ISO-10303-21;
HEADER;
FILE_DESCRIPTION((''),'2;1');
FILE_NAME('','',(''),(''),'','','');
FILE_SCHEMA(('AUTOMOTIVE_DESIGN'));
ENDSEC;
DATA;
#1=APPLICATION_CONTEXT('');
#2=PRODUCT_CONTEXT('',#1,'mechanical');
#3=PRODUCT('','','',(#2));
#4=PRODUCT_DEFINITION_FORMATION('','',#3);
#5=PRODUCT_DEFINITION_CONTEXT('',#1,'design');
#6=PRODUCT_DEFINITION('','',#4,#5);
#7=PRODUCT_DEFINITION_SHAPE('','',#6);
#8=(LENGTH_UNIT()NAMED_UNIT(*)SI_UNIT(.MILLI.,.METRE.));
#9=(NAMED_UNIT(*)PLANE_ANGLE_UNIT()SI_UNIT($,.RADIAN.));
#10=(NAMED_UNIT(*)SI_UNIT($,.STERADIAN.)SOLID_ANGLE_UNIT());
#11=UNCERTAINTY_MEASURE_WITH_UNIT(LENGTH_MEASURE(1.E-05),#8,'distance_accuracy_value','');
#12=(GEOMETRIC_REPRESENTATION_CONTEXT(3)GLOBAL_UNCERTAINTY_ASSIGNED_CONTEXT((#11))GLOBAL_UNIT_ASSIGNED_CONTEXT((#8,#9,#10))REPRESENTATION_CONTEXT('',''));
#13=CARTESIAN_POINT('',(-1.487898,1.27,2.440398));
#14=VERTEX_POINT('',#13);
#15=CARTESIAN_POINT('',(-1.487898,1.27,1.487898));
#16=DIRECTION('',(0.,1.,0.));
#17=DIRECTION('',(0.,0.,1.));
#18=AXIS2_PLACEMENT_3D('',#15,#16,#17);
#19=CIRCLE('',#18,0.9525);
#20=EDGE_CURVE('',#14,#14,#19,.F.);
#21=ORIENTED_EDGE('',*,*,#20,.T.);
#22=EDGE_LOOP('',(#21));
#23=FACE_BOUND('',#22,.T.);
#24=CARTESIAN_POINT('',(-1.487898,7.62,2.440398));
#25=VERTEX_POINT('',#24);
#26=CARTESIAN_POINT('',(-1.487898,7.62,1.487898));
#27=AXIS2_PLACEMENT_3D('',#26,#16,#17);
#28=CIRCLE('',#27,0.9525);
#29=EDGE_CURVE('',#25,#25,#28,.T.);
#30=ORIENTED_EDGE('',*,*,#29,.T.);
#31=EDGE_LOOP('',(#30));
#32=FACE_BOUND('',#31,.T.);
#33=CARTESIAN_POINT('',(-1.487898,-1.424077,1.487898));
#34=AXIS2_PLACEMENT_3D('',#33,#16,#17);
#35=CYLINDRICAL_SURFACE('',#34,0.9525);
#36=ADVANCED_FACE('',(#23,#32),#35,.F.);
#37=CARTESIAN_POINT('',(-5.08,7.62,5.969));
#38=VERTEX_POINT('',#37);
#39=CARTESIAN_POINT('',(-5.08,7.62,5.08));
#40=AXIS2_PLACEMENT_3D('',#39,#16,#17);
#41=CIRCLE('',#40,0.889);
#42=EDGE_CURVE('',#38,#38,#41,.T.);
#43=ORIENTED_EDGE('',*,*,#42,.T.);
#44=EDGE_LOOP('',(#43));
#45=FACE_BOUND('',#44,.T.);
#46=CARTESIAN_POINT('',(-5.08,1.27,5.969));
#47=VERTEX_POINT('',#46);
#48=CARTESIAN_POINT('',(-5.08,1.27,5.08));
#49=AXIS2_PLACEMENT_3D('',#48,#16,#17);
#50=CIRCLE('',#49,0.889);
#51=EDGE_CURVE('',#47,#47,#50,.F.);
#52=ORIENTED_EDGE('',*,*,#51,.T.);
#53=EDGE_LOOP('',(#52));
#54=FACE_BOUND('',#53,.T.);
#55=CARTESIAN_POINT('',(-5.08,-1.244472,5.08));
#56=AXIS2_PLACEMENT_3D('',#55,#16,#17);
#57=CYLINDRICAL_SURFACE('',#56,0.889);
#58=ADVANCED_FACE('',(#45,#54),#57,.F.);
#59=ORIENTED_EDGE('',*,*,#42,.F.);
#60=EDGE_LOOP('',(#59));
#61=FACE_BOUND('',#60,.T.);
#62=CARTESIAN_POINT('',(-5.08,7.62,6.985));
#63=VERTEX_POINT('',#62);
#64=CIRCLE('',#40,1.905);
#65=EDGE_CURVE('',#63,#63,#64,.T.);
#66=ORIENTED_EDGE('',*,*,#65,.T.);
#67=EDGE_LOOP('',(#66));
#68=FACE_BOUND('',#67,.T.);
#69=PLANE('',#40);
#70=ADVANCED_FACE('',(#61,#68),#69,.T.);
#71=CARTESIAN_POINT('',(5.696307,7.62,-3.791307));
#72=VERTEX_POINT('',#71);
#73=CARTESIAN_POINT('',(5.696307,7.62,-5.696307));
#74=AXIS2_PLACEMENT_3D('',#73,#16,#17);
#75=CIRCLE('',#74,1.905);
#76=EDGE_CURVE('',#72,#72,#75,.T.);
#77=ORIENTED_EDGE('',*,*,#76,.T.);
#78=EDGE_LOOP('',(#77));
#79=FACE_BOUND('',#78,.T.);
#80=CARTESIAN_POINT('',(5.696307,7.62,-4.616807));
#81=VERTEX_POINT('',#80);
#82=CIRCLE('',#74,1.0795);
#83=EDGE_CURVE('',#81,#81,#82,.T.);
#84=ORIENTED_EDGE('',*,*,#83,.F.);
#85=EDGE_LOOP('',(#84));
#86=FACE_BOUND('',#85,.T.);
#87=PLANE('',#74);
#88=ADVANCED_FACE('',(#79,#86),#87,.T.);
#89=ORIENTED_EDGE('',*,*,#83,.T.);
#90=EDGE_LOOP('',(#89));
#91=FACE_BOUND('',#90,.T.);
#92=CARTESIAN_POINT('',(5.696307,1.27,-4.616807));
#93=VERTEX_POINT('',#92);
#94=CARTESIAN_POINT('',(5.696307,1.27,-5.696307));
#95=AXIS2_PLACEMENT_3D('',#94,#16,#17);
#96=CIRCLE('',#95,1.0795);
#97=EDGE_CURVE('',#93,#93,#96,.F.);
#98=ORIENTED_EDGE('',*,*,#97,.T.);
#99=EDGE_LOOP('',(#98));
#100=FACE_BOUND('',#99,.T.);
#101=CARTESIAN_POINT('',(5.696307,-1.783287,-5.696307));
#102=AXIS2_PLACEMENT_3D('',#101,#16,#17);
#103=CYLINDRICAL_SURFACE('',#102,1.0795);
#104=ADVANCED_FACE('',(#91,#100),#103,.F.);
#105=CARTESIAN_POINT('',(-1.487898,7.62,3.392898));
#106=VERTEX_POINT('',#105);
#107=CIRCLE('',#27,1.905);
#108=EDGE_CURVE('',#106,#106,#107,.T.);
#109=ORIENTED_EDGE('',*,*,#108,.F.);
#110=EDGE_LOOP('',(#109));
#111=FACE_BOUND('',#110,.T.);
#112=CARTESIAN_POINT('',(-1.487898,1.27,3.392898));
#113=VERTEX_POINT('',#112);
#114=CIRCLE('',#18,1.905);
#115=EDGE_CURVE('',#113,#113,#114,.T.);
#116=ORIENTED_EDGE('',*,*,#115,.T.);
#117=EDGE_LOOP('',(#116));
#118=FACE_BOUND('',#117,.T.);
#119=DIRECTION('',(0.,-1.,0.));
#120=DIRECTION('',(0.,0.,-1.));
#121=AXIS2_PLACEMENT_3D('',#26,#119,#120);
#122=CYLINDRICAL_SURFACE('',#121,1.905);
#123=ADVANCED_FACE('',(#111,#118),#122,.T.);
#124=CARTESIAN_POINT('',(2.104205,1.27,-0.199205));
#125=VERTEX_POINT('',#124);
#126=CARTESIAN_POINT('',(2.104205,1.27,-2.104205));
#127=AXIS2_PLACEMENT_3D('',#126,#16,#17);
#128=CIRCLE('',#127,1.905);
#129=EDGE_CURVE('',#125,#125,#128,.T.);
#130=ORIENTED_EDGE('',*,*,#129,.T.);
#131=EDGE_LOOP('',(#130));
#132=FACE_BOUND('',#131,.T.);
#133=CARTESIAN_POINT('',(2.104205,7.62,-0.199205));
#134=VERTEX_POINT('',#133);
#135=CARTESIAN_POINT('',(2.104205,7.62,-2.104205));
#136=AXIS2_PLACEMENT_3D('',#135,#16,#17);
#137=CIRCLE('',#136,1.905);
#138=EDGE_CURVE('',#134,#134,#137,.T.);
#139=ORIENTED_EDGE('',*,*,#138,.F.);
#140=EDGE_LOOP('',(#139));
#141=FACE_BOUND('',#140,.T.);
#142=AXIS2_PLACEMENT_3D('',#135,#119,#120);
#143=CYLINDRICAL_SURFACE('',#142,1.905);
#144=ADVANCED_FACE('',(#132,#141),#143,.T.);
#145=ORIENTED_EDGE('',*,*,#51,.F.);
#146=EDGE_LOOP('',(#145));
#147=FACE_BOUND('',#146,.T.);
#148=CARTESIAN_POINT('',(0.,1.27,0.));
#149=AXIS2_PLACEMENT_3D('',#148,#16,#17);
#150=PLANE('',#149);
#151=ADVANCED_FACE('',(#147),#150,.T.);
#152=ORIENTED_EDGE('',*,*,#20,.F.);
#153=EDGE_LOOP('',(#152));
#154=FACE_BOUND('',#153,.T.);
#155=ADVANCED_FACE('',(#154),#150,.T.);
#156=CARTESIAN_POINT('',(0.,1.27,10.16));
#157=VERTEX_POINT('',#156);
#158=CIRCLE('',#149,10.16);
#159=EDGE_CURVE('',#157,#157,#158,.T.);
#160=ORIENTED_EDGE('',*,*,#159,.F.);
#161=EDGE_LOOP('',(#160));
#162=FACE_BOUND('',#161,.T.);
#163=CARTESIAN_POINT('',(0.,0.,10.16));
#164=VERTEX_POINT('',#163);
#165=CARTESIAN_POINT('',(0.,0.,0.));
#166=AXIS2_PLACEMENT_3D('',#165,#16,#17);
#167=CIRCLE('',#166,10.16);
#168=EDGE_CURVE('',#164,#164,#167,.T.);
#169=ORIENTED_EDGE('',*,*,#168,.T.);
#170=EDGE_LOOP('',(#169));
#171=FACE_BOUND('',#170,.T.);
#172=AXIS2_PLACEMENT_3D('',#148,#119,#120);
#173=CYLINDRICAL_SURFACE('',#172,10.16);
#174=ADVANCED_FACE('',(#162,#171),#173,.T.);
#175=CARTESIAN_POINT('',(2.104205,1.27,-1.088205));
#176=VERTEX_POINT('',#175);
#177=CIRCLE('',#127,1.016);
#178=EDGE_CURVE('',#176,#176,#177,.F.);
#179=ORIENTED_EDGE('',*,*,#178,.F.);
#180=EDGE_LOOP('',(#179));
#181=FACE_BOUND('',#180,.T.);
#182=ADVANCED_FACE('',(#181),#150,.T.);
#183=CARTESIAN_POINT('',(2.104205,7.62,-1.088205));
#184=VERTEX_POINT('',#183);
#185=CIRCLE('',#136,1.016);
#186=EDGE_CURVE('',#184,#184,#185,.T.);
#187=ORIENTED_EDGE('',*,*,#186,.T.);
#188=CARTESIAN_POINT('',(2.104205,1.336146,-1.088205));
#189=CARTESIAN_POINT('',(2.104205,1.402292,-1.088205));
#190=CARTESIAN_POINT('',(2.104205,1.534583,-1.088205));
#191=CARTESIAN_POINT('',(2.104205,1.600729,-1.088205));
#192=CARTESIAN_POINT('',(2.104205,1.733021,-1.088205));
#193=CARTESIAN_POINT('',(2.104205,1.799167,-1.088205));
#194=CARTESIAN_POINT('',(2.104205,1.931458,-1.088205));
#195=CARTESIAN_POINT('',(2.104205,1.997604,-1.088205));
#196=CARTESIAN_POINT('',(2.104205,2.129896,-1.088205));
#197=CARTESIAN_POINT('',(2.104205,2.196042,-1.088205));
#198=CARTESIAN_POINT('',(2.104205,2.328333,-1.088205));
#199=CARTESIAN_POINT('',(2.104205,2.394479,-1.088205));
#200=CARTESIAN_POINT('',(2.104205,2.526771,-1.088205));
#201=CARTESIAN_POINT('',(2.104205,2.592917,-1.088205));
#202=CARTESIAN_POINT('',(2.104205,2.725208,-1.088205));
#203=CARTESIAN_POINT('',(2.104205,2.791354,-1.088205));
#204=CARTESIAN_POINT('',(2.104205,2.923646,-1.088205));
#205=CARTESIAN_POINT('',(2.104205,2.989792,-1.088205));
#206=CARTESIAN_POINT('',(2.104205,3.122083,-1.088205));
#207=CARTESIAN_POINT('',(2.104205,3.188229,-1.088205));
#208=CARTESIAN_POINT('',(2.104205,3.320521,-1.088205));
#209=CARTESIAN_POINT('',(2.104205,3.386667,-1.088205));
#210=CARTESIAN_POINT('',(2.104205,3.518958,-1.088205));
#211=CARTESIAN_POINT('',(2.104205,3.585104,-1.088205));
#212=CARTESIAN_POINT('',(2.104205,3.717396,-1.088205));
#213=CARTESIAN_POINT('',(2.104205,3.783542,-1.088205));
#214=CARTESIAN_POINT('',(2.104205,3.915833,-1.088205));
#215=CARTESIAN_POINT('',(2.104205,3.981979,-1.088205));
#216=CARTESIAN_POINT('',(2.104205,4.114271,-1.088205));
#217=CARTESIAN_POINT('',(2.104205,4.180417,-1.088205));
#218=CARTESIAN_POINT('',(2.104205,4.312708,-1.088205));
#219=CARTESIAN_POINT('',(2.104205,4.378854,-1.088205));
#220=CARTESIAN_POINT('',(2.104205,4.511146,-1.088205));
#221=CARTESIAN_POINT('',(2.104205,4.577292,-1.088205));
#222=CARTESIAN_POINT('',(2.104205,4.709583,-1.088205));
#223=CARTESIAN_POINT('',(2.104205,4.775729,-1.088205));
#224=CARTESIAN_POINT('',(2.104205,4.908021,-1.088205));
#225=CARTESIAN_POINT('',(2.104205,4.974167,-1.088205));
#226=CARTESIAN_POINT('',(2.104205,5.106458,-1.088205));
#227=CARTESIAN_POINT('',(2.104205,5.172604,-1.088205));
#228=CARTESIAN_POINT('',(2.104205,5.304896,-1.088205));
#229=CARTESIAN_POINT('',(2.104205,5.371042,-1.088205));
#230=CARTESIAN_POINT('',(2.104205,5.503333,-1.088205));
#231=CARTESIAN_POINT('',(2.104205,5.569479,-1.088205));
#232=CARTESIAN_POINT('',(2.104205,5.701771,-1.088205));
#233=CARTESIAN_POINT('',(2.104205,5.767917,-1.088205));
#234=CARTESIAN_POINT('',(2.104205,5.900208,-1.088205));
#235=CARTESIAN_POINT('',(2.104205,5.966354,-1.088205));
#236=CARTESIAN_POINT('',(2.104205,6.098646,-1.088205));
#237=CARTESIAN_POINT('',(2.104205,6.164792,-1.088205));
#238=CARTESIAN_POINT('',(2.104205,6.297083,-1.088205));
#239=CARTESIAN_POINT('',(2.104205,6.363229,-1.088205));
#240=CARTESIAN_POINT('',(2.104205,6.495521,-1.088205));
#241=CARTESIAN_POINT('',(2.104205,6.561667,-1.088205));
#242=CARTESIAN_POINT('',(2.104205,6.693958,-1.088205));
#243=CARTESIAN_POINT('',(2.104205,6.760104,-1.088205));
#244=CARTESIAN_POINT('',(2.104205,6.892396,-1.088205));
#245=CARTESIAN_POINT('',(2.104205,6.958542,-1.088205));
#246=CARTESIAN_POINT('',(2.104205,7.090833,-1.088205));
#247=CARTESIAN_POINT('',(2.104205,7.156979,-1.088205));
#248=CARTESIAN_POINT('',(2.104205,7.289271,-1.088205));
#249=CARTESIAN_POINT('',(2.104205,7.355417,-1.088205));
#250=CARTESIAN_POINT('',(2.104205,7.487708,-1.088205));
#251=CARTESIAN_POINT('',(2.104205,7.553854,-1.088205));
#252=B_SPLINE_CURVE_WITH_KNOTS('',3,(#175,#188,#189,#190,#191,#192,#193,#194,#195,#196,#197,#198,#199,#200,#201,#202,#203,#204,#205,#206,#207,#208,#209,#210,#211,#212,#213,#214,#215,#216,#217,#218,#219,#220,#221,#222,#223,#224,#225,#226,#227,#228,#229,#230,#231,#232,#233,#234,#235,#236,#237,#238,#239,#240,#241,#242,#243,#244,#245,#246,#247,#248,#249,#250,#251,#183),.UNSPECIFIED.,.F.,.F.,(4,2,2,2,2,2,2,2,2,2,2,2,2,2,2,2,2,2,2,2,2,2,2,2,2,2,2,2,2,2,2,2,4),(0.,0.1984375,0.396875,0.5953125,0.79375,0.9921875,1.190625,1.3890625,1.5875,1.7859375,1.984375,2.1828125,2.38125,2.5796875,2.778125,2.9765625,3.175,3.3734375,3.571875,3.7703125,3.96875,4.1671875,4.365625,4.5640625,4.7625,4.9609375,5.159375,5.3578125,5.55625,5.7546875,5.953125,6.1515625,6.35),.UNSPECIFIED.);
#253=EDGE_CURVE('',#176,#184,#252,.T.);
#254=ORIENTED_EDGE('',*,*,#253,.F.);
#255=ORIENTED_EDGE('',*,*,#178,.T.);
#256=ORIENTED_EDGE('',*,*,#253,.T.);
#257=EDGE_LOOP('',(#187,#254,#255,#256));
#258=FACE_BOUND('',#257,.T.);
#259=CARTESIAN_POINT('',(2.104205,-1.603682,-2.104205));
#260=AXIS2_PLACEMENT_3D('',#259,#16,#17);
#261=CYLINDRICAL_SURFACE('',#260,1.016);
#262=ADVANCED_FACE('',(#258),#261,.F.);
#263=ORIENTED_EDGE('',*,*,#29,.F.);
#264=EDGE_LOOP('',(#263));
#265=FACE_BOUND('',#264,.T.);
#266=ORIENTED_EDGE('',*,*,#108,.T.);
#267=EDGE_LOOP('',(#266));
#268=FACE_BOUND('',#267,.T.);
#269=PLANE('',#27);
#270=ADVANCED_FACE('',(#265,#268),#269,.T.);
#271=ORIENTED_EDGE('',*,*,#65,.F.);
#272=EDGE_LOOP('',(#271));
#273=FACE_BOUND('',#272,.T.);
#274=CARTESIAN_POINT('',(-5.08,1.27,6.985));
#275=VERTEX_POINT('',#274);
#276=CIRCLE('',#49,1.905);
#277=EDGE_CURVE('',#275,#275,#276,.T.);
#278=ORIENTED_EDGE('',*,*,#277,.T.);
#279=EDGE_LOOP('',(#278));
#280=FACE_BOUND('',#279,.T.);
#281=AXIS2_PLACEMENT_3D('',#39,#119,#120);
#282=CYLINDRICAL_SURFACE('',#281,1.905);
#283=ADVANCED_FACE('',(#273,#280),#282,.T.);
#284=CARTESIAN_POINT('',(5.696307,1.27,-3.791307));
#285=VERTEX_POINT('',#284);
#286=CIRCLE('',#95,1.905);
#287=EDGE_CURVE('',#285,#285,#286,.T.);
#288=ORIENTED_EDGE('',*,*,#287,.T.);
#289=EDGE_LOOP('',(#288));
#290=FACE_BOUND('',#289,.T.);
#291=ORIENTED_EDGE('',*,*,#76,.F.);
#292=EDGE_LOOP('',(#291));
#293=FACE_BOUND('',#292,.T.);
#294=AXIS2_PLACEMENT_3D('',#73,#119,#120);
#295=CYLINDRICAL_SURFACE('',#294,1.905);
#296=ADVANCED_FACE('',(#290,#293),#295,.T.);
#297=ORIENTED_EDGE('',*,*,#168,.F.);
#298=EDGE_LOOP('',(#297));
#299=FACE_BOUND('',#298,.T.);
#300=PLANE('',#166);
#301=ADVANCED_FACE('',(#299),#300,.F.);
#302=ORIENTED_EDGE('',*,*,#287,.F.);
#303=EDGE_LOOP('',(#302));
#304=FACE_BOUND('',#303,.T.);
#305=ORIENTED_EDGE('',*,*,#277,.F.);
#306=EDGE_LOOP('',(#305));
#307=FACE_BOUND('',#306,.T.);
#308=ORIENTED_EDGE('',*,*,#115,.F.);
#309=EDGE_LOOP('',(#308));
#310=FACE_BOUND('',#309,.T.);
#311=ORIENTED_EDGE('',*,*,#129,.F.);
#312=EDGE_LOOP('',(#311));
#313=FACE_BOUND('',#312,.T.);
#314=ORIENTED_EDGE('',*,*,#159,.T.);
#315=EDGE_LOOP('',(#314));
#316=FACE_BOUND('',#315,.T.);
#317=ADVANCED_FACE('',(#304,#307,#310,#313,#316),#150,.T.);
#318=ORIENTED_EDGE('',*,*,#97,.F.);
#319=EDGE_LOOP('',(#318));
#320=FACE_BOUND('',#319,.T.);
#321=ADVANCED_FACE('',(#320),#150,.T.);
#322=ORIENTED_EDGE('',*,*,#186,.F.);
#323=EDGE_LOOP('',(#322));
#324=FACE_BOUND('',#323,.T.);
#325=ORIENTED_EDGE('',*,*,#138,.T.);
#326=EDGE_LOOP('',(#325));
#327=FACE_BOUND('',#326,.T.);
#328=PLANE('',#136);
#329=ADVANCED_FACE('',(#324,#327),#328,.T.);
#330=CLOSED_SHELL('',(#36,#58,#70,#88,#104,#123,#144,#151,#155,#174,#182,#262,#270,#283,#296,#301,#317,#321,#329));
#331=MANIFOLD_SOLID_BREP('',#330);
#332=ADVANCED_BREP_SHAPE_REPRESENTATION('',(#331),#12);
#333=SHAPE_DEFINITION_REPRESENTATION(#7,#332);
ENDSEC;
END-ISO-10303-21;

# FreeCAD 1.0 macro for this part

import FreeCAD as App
import Part
import Sketcher
from FreeCAD import Vector
Q = App.Units.Quantity

doc = App.newDocument("Part")
body = doc.addObject("PartDesign::Body", "Body")

sketch1 = body.newObject("Sketcher::SketchObject", "Sketch")
sketch1.AttachmentSupport = (doc.getObject("XZ_Plane"), [""])
sketch1.MapMode = "FlatFace"
sketch1.addGeometry(Part.Circle(Vector(0, 0, 0), Vector(0, 0, 1), 10), False)
sketch1.addConstraint([
    Sketcher.Constraint("Coincident", 0, 3, -1, 1),
    Sketcher.Constraint("Diameter", 0, Q("0.8 in")),
])
pad1 = body.newObject("PartDesign::Pad", "Pad")
pad1.Profile = sketch1
pad1.Length = Q("0.05 in")
pad1.Reversed = True

sketch2 = body.newObject("Sketcher::SketchObject", "Sketch001")
sketch2.AttachmentSupport = (doc.getObject("XZ_Plane"), [""])
sketch2.MapMode = "FlatFace"
sketch2.AttachmentOffset = App.Placement(Vector(0, 0, -0.05 * 25.4), App.Rotation())
sketch2.addGeometry(Part.Circle(Vector(-5.1, 5.1, 0), Vector(0, 0, 1), 1.9), False)
sketch2.addConstraint([
    Sketcher.Constraint("Diameter", 0, Q("0.15 in")),
    Sketcher.Constraint("DistanceX", 0, 3, -1, 1, Q("0.2 in")),
    Sketcher.Constraint("DistanceY", -1, 1, 0, 3, Q("0.2 in")),
])
pad2 = body.newObject("PartDesign::Pad", "Pad001")
pad2.Profile = sketch2
pad2.Length = Q("0.25 in")
pad2.Reversed = True
doc.recompute()

datumline = body.newObject("PartDesign::Line", "DatumLine")
datumline.Placement = App.Placement(Vector(0, 0, 0), App.Rotation(Vector(0, 0, 1), Vector(0.707106781, 0, -0.707106781)))
linearpattern = body.newObject("PartDesign::LinearPattern", "LinearPattern")
linearpattern.Originals = [pad2]
linearpattern.Direction = (datumline, [""])
linearpattern.Mode = "offset"
linearpattern.Offset = Q("0.2 in")
linearpattern.Occurrences = 4
body.Tip = linearpattern

sketch3 = body.newObject("Sketcher::SketchObject", "Sketch002")
sketch3.AttachmentSupport = (doc.getObject("XZ_Plane"), [""])
sketch3.MapMode = "FlatFace"
sketch3.AttachmentOffset = App.Placement(Vector(0, 0, -0.3 * 25.4), App.Rotation())
sketch3.addGeometry(Part.Circle(Vector(-5.1, 5.1, 0), Vector(0, 0, 1), 0.9), False)
sketch3.addConstraint([
    Sketcher.Constraint("Diameter", 0, Q("0.07 in")),
    Sketcher.Constraint("DistanceX", 0, 3, -1, 1, Q("0.2 in")),
    Sketcher.Constraint("DistanceY", -1, 1, 0, 3, Q("0.2 in")),
])
pocket1 = body.newObject("PartDesign::Pocket", "Pocket")
pocket1.Profile = sketch3
pocket1.Length = Q("0.25 in")
pocket1.Reversed = True

sketch4 = body.newObject("Sketcher::SketchObject", "Sketch003")
sketch4.AttachmentSupport = (doc.getObject("XZ_Plane"), [""])
sketch4.MapMode = "FlatFace"
sketch4.AttachmentOffset = App.Placement(Vector(0, 0, -0.3 * 25.4), App.Rotation())
sketch4.addGeometry(Part.Circle(Vector(-1.5, 1.5, 0), Vector(0, 0, 1), 1), False)
sketch4.addConstraint([
    Sketcher.Constraint("Diameter", 0, Q("0.075 in")),
    Sketcher.Constraint("DistanceX", 0, 3, -1, 1, 1.487898),
    Sketcher.Constraint("DistanceY", -1, 1, 0, 3, 1.487898),
])
pocket2 = body.newObject("PartDesign::Pocket", "Pocket001")
pocket2.Profile = sketch4
pocket2.Length = Q("0.25 in")
pocket2.Reversed = True

sketch5 = body.newObject("Sketcher::SketchObject", "Sketch004")
sketch5.AttachmentSupport = (doc.getObject("XZ_Plane"), [""])
sketch5.MapMode = "FlatFace"
sketch5.AttachmentOffset = App.Placement(Vector(0, 0, -0.3 * 25.4), App.Rotation())
sketch5.addGeometry(Part.Circle(Vector(2.1, -2.1, 0), Vector(0, 0, 1), 1), False)
sketch5.addConstraint([
    Sketcher.Constraint("Diameter", 0, Q("0.08 in")),
    Sketcher.Constraint("DistanceX", -1, 1, 0, 3, 2.104205),
    Sketcher.Constraint("DistanceY", 0, 3, -1, 1, 2.104205),
])
pocket3 = body.newObject("PartDesign::Pocket", "Pocket002")
pocket3.Profile = sketch5
pocket3.Length = Q("0.25 in")
pocket3.Reversed = True

sketch6 = body.newObject("Sketcher::SketchObject", "Sketch005")
sketch6.AttachmentSupport = (doc.getObject("XZ_Plane"), [""])
sketch6.MapMode = "FlatFace"
sketch6.AttachmentOffset = App.Placement(Vector(0, 0, -0.3 * 25.4), App.Rotation())
sketch6.addGeometry(Part.Circle(Vector(5.7, -5.7, 0), Vector(0, 0, 1), 1.1), False)
sketch6.addConstraint([
    Sketcher.Constraint("Diameter", 0, Q("0.085 in")),
    Sketcher.Constraint("DistanceX", -1, 1, 0, 3, 5.696307),
    Sketcher.Constraint("DistanceY", 0, 3, -1, 1, 5.696307),
])
pocket4 = body.newObject("PartDesign::Pocket", "Pocket003")
pocket4.Profile = sketch6
pocket4.Length = Q("0.25 in")
pocket4.Reversed = True

doc.recompute()
